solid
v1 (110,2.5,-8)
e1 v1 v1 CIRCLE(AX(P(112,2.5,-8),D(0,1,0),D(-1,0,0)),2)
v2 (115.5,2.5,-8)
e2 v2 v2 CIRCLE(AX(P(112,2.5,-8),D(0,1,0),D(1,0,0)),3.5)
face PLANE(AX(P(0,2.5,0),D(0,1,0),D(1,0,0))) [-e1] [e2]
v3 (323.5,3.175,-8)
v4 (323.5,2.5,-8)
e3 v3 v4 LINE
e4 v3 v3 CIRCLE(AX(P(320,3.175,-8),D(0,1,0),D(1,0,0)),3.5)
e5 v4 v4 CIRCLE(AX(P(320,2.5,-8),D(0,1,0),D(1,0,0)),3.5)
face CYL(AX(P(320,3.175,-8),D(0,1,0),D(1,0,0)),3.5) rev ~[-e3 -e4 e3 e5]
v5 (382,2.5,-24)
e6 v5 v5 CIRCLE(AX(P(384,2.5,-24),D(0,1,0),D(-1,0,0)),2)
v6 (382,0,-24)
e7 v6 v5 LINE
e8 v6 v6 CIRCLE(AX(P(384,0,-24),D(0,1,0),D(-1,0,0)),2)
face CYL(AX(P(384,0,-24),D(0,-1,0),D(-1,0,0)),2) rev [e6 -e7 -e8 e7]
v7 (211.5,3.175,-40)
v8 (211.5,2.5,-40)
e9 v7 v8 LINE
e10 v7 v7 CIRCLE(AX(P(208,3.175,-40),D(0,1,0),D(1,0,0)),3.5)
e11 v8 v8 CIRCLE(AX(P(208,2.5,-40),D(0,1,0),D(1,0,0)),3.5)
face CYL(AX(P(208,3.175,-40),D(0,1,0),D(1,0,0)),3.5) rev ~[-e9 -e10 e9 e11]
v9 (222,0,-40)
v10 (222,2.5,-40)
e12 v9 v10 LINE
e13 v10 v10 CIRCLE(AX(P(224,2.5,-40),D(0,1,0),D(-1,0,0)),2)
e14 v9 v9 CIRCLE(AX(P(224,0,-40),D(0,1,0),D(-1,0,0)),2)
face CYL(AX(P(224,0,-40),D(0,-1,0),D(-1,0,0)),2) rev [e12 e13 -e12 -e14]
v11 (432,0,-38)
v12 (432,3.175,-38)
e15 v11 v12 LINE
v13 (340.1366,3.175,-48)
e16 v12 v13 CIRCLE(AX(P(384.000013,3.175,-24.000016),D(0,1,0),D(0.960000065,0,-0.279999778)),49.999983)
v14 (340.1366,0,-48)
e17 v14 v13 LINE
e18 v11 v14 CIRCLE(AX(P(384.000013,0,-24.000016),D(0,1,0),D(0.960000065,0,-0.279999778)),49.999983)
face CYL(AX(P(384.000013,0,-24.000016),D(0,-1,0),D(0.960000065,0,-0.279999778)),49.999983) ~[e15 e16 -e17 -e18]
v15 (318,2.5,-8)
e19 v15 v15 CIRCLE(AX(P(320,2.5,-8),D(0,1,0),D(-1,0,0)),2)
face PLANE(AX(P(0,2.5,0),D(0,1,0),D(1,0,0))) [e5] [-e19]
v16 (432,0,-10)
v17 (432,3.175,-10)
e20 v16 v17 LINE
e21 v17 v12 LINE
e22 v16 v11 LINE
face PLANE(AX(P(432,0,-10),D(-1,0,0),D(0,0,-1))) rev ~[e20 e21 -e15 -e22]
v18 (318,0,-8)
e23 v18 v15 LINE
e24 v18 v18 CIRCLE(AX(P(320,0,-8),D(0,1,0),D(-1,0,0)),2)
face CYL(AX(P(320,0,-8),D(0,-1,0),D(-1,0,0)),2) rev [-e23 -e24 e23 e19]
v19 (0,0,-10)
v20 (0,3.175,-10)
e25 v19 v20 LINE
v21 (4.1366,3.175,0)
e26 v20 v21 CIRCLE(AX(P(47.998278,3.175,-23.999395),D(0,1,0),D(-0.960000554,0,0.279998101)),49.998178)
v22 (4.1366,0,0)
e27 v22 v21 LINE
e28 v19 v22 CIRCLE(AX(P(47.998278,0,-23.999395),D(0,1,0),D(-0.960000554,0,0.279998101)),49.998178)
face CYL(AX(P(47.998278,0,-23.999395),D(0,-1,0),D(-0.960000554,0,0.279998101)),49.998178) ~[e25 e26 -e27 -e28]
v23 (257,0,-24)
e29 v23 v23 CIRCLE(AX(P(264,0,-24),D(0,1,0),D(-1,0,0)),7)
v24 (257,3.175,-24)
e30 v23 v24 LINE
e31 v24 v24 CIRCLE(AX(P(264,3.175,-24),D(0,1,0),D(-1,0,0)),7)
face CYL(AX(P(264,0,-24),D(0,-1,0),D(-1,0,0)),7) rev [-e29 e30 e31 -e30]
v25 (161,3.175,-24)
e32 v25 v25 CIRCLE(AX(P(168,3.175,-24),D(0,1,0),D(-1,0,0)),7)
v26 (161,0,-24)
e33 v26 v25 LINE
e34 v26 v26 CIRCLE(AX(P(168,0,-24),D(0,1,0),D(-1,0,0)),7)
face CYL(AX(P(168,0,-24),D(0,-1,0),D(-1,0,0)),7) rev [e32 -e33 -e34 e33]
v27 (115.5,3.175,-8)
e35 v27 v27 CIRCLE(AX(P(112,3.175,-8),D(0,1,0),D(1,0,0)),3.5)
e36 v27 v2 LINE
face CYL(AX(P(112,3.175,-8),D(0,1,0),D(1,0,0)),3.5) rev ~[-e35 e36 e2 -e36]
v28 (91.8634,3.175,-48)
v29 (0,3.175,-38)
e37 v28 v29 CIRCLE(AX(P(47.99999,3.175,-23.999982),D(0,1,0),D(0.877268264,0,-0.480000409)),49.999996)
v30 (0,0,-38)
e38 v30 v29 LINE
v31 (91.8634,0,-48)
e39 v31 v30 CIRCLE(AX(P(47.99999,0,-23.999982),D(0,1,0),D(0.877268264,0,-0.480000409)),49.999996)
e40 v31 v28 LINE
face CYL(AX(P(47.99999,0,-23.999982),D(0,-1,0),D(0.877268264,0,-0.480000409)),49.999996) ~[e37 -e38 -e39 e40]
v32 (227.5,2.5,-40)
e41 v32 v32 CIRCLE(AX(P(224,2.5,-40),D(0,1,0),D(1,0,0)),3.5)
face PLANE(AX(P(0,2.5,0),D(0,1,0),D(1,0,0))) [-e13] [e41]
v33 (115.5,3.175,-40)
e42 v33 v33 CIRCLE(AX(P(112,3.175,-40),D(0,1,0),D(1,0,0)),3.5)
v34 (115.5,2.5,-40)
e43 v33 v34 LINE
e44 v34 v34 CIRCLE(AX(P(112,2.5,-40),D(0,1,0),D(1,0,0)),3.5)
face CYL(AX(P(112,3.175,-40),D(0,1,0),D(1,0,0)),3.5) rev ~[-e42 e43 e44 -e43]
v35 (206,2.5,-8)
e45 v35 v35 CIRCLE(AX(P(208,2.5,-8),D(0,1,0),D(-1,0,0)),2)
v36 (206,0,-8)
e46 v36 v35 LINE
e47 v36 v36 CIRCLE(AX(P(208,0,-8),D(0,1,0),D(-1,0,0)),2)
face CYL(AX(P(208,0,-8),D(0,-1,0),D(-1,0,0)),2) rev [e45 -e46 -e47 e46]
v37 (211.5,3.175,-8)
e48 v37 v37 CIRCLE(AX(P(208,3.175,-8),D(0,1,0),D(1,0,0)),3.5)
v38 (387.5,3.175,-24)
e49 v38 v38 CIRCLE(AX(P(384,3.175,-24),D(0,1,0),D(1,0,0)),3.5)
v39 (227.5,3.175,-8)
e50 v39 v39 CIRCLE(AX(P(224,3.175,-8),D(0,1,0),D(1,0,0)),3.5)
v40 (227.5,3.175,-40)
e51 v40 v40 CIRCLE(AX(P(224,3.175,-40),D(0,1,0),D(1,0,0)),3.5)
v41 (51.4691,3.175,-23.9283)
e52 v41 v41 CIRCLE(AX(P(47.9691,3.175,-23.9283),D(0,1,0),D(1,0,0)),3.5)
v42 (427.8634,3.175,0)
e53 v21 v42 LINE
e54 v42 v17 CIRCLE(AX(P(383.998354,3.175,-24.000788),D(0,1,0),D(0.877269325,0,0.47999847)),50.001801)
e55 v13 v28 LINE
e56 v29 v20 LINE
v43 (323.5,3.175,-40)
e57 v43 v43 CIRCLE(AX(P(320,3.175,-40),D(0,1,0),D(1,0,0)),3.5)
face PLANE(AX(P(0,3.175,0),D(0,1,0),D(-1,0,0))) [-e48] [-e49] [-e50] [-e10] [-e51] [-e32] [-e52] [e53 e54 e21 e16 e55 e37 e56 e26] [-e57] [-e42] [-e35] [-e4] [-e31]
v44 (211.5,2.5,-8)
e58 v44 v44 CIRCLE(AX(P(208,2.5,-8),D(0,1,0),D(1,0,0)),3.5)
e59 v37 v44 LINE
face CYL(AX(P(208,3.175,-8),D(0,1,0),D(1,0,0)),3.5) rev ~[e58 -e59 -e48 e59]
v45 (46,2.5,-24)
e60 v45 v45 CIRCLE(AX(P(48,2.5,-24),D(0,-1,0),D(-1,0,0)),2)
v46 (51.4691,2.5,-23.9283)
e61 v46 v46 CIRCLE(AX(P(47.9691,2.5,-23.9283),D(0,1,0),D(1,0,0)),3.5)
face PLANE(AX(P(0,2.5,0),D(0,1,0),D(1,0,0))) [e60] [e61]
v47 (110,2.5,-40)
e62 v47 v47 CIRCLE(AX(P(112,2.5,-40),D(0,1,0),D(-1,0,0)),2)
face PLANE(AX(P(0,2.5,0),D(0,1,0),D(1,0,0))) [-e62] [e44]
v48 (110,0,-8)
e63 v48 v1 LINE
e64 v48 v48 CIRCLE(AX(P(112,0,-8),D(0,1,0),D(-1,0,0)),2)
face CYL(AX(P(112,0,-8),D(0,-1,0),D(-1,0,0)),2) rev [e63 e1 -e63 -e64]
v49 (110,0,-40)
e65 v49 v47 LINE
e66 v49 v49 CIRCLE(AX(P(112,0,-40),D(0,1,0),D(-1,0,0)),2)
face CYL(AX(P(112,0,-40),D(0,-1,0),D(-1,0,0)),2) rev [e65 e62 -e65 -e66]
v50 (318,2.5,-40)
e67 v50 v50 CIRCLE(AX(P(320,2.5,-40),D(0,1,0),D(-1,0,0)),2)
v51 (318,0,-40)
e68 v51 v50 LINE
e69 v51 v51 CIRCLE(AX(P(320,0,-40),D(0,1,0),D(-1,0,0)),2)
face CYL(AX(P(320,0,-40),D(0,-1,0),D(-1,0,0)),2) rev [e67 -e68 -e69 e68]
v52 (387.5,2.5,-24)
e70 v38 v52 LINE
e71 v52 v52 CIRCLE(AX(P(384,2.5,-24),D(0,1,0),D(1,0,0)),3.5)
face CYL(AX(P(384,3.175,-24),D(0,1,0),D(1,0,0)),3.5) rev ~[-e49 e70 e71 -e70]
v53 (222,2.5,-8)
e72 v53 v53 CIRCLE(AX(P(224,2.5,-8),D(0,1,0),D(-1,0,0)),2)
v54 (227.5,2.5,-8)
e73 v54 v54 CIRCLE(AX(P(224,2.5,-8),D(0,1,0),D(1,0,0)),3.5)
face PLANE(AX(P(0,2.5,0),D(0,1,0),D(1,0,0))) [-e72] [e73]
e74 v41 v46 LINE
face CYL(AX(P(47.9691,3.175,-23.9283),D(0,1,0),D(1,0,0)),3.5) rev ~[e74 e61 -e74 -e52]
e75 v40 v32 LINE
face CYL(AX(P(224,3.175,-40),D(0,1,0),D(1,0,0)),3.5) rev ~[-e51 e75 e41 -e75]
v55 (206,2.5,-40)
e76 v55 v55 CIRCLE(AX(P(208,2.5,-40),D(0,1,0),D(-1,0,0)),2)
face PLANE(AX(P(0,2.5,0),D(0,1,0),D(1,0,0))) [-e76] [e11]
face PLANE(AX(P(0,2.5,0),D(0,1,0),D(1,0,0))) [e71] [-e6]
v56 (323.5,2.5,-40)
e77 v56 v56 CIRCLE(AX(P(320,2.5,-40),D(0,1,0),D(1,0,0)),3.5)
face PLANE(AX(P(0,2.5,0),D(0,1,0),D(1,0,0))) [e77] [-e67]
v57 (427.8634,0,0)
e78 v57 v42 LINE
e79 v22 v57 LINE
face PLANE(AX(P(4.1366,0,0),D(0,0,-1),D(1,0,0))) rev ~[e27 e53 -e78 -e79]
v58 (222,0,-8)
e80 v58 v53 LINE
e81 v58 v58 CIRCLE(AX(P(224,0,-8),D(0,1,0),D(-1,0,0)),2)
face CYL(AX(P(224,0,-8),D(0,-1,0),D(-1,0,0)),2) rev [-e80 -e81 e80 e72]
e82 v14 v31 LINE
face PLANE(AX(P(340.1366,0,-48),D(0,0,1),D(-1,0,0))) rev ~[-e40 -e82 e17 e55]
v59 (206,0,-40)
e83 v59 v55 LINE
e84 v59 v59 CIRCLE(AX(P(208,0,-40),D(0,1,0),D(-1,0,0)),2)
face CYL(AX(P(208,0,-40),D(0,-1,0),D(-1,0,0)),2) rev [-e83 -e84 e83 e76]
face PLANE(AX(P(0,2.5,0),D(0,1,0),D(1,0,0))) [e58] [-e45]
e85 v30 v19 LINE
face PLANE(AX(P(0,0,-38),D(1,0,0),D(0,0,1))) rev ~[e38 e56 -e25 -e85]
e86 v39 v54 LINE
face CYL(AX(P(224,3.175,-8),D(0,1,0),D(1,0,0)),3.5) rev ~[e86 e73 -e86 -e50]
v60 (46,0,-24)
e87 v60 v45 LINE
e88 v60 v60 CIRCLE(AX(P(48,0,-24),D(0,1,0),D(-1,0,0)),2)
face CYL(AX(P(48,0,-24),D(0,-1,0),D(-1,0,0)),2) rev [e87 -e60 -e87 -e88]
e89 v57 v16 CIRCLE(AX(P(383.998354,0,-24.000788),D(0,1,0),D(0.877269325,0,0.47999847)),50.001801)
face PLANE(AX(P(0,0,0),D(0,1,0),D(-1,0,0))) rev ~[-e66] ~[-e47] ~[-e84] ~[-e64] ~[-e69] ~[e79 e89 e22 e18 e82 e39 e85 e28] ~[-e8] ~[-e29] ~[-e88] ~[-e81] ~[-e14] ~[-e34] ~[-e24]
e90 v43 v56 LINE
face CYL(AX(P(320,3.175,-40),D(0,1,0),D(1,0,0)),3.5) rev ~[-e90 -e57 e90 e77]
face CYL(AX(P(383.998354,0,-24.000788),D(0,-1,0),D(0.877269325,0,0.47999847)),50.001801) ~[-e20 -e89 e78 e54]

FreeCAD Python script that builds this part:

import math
import FreeCAD as App
import Part
import Sketcher
from FreeCAD import Vector

doc = App.newDocument("Part")
params = doc.addObject("Spreadsheet::Sheet", "Params")
for row, (alias, value) in enumerate([
    ("sketch1_diameter", "4 mm"),
    ("sketch1_diameter2", "14 mm"),
    ("sketch1_radius", "50 mm"),
    ("pad1_length", "3.175 mm"),
    ("sketch2_diameter", "7 mm"),
    ("sketch2_diameter2", "4 mm"),
    ("pocket1_length", "0.675 mm"),
], start=1):
    params.set(f"A{row}", alias)
    params.set(f"B{row}", "=" + value)
    params.setAlias(f"B{row}", alias)

body = doc.addObject("PartDesign::Body", "Body")

# Sketch on XZ plane
sketch1 = doc.addObject("Sketcher::SketchObject", "Sketch")
body.addObject(sketch1)
sketch1.AttachmentSupport = (doc.XZ_Plane, [""])
sketch1.MapMode = "FlatFace"
sketch1.addGeometry(Part.ArcOfCircle(Part.Circle(Vector(47.998278, -23.999395, 0), Vector(0, 0, 1), 49.998178), math.radians(151.314246), math.radians(163.739909)), False)
sketch1.addGeometry(Part.LineSegment(Vector(4.1366, 0, 0), Vector(427.8634, 0, 0)), False)
sketch1.addGeometry(Part.ArcOfCircle(Part.Circle(Vector(383.998354, -24.000788, 0), Vector(0, 0, 1), 50.001801), math.radians(16.260543), math.radians(28.685302)), False)
sketch1.addGeometry(Part.LineSegment(Vector(432, -10, 0), Vector(432, -38, 0)), False)
sketch1.addGeometry(Part.ArcOfCircle(Part.Circle(Vector(384, -24, 0), Vector(0, 0, 1), 49.999979), math.radians(-151.314585), math.radians(-16.260205)), False)
sketch1.addGeometry(Part.LineSegment(Vector(340.1366, -48, 0), Vector(91.8634, -48, 0)), False)
sketch1.addGeometry(Part.ArcOfCircle(Part.Circle(Vector(48, -24, 0), Vector(0, 0, 1), 50), math.radians(-163.739795), math.radians(-28.685415)), False)
sketch1.addGeometry(Part.LineSegment(Vector(0, -38, 0), Vector(0, -10, 0)), False)
sketch1.addGeometry(Part.Circle(Vector(320, -40, 0), Vector(0, 0, 1), 2), False)
sketch1.addGeometry(Part.Circle(Vector(224, -40, 0), Vector(0, 0, 1), 2), False)
sketch1.addGeometry(Part.Circle(Vector(208, -40, 0), Vector(0, 0, 1), 2), False)
sketch1.addGeometry(Part.Circle(Vector(112, -40, 0), Vector(0, 0, 1), 2), False)
sketch1.addGeometry(Part.Circle(Vector(384, -24, 0), Vector(0, 0, 1), 2), False)
sketch1.addGeometry(Part.Circle(Vector(264, -24, 0), Vector(0, 0, 1), 7), False)
sketch1.addGeometry(Part.Circle(Vector(320, -8, 0), Vector(0, 0, 1), 2), False)
sketch1.addGeometry(Part.Circle(Vector(224, -8, 0), Vector(0, 0, 1), 2), False)
sketch1.addGeometry(Part.Circle(Vector(168, -24, 0), Vector(0, 0, 1), 7), False)
sketch1.addGeometry(Part.Circle(Vector(48, -24, 0), Vector(0, 0, 1), 2), False)
sketch1.addGeometry(Part.Circle(Vector(208, -8, 0), Vector(0, 0, 1), 2), False)
sketch1.addGeometry(Part.Circle(Vector(112, -8, 0), Vector(0, 0, 1), 2), False)
sketch1.addConstraint(Sketcher.Constraint("Coincident", 0, 1, 1, 1))
sketch1.addConstraint(Sketcher.Constraint("Coincident", 1, 2, 2, 2))
sketch1.addConstraint(Sketcher.Constraint("Coincident", 2, 1, 3, 1))
sketch1.addConstraint(Sketcher.Constraint("Coincident", 3, 2, 4, 2))
sketch1.addConstraint(Sketcher.Constraint("Coincident", 4, 1, 5, 1))
sketch1.addConstraint(Sketcher.Constraint("Coincident", 5, 2, 6, 2))
sketch1.addConstraint(Sketcher.Constraint("Coincident", 6, 1, 7, 1))
sketch1.addConstraint(Sketcher.Constraint("Coincident", 7, 2, 0, 2))
sketch1.addConstraint(Sketcher.Constraint("Horizontal", 1))
sketch1.addConstraint(Sketcher.Constraint("Vertical", 3))
sketch1.addConstraint(Sketcher.Constraint("Horizontal", 5))
sketch1.addConstraint(Sketcher.Constraint("Vertical", 7))
sketch1.addConstraint(Sketcher.Constraint("Coincident", 12, 3, 4, 3))
sketch1.addConstraint(Sketcher.Constraint("Coincident", 17, 3, 6, 3))
sketch1.addConstraint(Sketcher.Constraint("Equal", 4, 6))
sketch1.addConstraint(Sketcher.Constraint("Equal", 8, 9))
sketch1.addConstraint(Sketcher.Constraint("Equal", 9, 10))
sketch1.addConstraint(Sketcher.Constraint("Equal", 10, 11))
sketch1.addConstraint(Sketcher.Constraint("Equal", 11, 12))
sketch1.addConstraint(Sketcher.Constraint("Equal", 12, 14))
sketch1.addConstraint(Sketcher.Constraint("Equal", 14, 15))
sketch1.addConstraint(Sketcher.Constraint("Equal", 13, 16))
sketch1.addConstraint(Sketcher.Constraint("Equal", 15, 17))
sketch1.addConstraint(Sketcher.Constraint("Equal", 17, 18))
sketch1.addConstraint(Sketcher.Constraint("Equal", 18, 19))
sketch1.addConstraint(Sketcher.Constraint("PointOnObject", 0, 1, -1))
sketch1.addConstraint(Sketcher.Constraint("PointOnObject", 6, 1, -2))
sketch1.addConstraint(Sketcher.Constraint("Horizontal", 4, 3, 6, 3))
sketch1.addConstraint(Sketcher.Constraint("Horizontal", 8, 3, 9, 3))
sketch1.addConstraint(Sketcher.Constraint("Horizontal", 9, 3, 10, 3))
sketch1.addConstraint(Sketcher.Constraint("Horizontal", 10, 3, 11, 3))
sketch1.addConstraint(Sketcher.Constraint("Horizontal", 12, 3, 13, 3))
sketch1.addConstraint(Sketcher.Constraint("Horizontal", 14, 3, 15, 3))
sketch1.addConstraint(Sketcher.Constraint("Horizontal", 13, 3, 16, 3))
sketch1.addConstraint(Sketcher.Constraint("Horizontal", 15, 3, 18, 3))
sketch1.addConstraint(Sketcher.Constraint("Horizontal", 18, 3, 19, 3))
sketch1.addConstraint(Sketcher.Constraint("Horizontal", 3, 2, 6, 1))
sketch1.addConstraint(Sketcher.Constraint("Horizontal", 2, 1, 7, 2))
sketch1.addConstraint(Sketcher.Constraint("Vertical", 8, 3, 14, 3))
sketch1.addConstraint(Sketcher.Constraint("Vertical", 9, 3, 15, 3))
sketch1.addConstraint(Sketcher.Constraint("Vertical", 10, 3, 18, 3))
sketch1.addConstraint(Sketcher.Constraint("Vertical", 11, 3, 19, 3))
sketch1.addConstraint(Sketcher.Constraint("Diameter", 8, 4.0))
sketch1.addConstraint(Sketcher.Constraint("Diameter", 13, 14.0))
sketch1.addConstraint(Sketcher.Constraint("DistanceX", -1, 1, 6, 3, 48.0))
sketch1.addConstraint(Sketcher.Constraint("DistanceX", -1, 1, 10, 3, 208.0))
sketch1.addConstraint(Sketcher.Constraint("DistanceX", -1, 1, 11, 3, 112.0))
sketch1.addConstraint(Sketcher.Constraint("DistanceY", 14, 3, -1, 1, 8.0))
sketch1.addConstraint(Sketcher.Constraint("DistanceX", -1, 1, 16, 3, 168.0))
sketch1.addConstraint(Sketcher.Constraint("DistanceX", -1, 1, 2, 1, 432.0))
sketch1.addConstraint(Sketcher.Constraint("DistanceY", 4, 1, -1, 1, 48.0))
sketch1.addConstraint(Sketcher.Constraint("Radius", 4, 50.0))
sketch1.addConstraint(Sketcher.Constraint("DistanceX", 10, 3, 8, 3, 112.0))
sketch1.addConstraint(Sketcher.Constraint("DistanceX", 11, 3, 9, 3, 112.0))
sketch1.addConstraint(Sketcher.Constraint("DistanceY", 4, 3, 2, 1, 14.0))
sketch1.addConstraint(Sketcher.Constraint("DistanceY", 4, 1, 8, 3, 8.0))
sketch1.addConstraint(Sketcher.Constraint("DistanceY", 4, 3, -1, 1, 24.0))
sketch1.addConstraint(Sketcher.Constraint("DistanceX", -1, 1, 13, 3, 264.0))
sketch1.addConstraint(Sketcher.Constraint("DistanceX", 0, 3, 2, 3, 336.0))
sketch1.addConstraint(Sketcher.Constraint("Radius", 0, 49.9982))
sketch1.addConstraint(Sketcher.Constraint("Radius", 2, 50.0018))
sketch1.addConstraint(Sketcher.Constraint("DistanceX", 2, 3, 1, 2, 43.865))
sketch1.setExpression("Constraints[42]", "Params.sketch1_diameter")
sketch1.setExpression("Constraints[43]", "Params.sketch1_diameter2")
sketch1.setExpression("Constraints[51]", "Params.sketch1_radius")
pad1 = doc.addObject("PartDesign::Pad", "Pad")
body.addObject(pad1)
pad1.Profile = sketch1
pad1.setExpression("Length", "Params.pad1_length")
pad1.Reversed = True

# Sketch on XZ plane
sketch2 = doc.addObject("Sketcher::SketchObject", "Sketch001")
body.addObject(sketch2)
sketch2.AttachmentSupport = (doc.XZ_Plane, [""])
sketch2.MapMode = "FlatFace"
sketch2.AttachmentOffset = App.Placement(Vector(0, 0, -3.175), App.Rotation())
sketch2.addGeometry(Part.Circle(Vector(47.9691, -23.9283, 0), Vector(0, 0, 1), 3.5), False)
sketch2.addGeometry(Part.Circle(Vector(112, -8, 0), Vector(0, 0, 1), 3.5), False)
sketch2.addGeometry(Part.Circle(Vector(112, -8, 0), Vector(0, 0, 1), 2), False)
sketch2.addGeometry(Part.Circle(Vector(112, -40, 0), Vector(0, 0, 1), 3.5), False)
sketch2.addGeometry(Part.Circle(Vector(112, -40, 0), Vector(0, 0, 1), 2), False)
sketch2.addGeometry(Part.Circle(Vector(208, -40, 0), Vector(0, 0, 1), 3.5), False)
sketch2.addGeometry(Part.Circle(Vector(208, -40, 0), Vector(0, 0, 1), 2), False)
sketch2.addGeometry(Part.Circle(Vector(224, -40, 0), Vector(0, 0, 1), 3.5), False)
sketch2.addGeometry(Part.Circle(Vector(224, -40, 0), Vector(0, 0, 1), 2), False)
sketch2.addGeometry(Part.Circle(Vector(224, -8, 0), Vector(0, 0, 1), 3.5), False)
sketch2.addGeometry(Part.Circle(Vector(224, -8, 0), Vector(0, 0, 1), 2), False)
sketch2.addGeometry(Part.Circle(Vector(208, -8, 0), Vector(0, 0, 1), 3.5), False)
sketch2.addGeometry(Part.Circle(Vector(208, -8, 0), Vector(0, 0, 1), 2), False)
sketch2.addGeometry(Part.Circle(Vector(320, -40, 0), Vector(0, 0, 1), 3.5), False)
sketch2.addGeometry(Part.Circle(Vector(320, -40, 0), Vector(0, 0, 1), 2), False)
sketch2.addGeometry(Part.Circle(Vector(320, -8, 0), Vector(0, 0, 1), 3.5), False)
sketch2.addGeometry(Part.Circle(Vector(320, -8, 0), Vector(0, 0, 1), 2), False)
sketch2.addGeometry(Part.Circle(Vector(384, -24, 0), Vector(0, 0, 1), 3.5), False)
sketch2.addGeometry(Part.Circle(Vector(384, -24, 0), Vector(0, 0, 1), 2), False)
sketch2.addConstraint(Sketcher.Constraint("Coincident", 2, 3, 1, 3))
sketch2.addConstraint(Sketcher.Constraint("Coincident", 4, 3, 3, 3))
sketch2.addConstraint(Sketcher.Constraint("Coincident", 6, 3, 5, 3))
sketch2.addConstraint(Sketcher.Constraint("Coincident", 8, 3, 7, 3))
sketch2.addConstraint(Sketcher.Constraint("Coincident", 10, 3, 9, 3))
sketch2.addConstraint(Sketcher.Constraint("Coincident", 12, 3, 11, 3))
sketch2.addConstraint(Sketcher.Constraint("Coincident", 14, 3, 13, 3))
sketch2.addConstraint(Sketcher.Constraint("Coincident", 16, 3, 15, 3))
sketch2.addConstraint(Sketcher.Constraint("Coincident", 18, 3, 17, 3))
sketch2.addConstraint(Sketcher.Constraint("Equal", 0, 1))
sketch2.addConstraint(Sketcher.Constraint("Equal", 1, 3))
sketch2.addConstraint(Sketcher.Constraint("Equal", 2, 4))
sketch2.addConstraint(Sketcher.Constraint("Equal", 3, 5))
sketch2.addConstraint(Sketcher.Constraint("Equal", 4, 6))
sketch2.addConstraint(Sketcher.Constraint("Equal", 5, 7))
sketch2.addConstraint(Sketcher.Constraint("Equal", 6, 8))
sketch2.addConstraint(Sketcher.Constraint("Equal", 7, 9))
sketch2.addConstraint(Sketcher.Constraint("Equal", 8, 10))
sketch2.addConstraint(Sketcher.Constraint("Equal", 9, 11))
sketch2.addConstraint(Sketcher.Constraint("Equal", 10, 12))
sketch2.addConstraint(Sketcher.Constraint("Equal", 11, 13))
sketch2.addConstraint(Sketcher.Constraint("Equal", 12, 14))
sketch2.addConstraint(Sketcher.Constraint("Equal", 13, 15))
sketch2.addConstraint(Sketcher.Constraint("Equal", 14, 16))
sketch2.addConstraint(Sketcher.Constraint("Equal", 15, 17))
sketch2.addConstraint(Sketcher.Constraint("Equal", 16, 18))
sketch2.addConstraint(Sketcher.Constraint("Horizontal", 4, 3, 5, 3))
sketch2.addConstraint(Sketcher.Constraint("Horizontal", 6, 3, 7, 3))
sketch2.addConstraint(Sketcher.Constraint("Horizontal", 2, 3, 9, 3))
sketch2.addConstraint(Sketcher.Constraint("Horizontal", 10, 3, 11, 3))
sketch2.addConstraint(Sketcher.Constraint("Horizontal", 8, 3, 13, 3))
sketch2.addConstraint(Sketcher.Constraint("Horizontal", 12, 3, 15, 3))
sketch2.addConstraint(Sketcher.Constraint("Vertical", 2, 3, 3, 3))
sketch2.addConstraint(Sketcher.Constraint("Vertical", 8, 3, 9, 3))
sketch2.addConstraint(Sketcher.Constraint("Vertical", 6, 3, 11, 3))
sketch2.addConstraint(Sketcher.Constraint("Vertical", 14, 3, 15, 3))
sketch2.addConstraint(Sketcher.Constraint("Diameter", 0, 7.0))
sketch2.addConstraint(Sketcher.Constraint("Diameter", 2, 4.0))
sketch2.addConstraint(Sketcher.Constraint("DistanceX", -1, 1, 1, 3, 112.0))
sketch2.addConstraint(Sketcher.Constraint("DistanceY", 1, 3, -1, 1, 8.0))
sketch2.addConstraint(Sketcher.Constraint("DistanceY", 3, 3, -1, 1, 40.0))
sketch2.addConstraint(Sketcher.Constraint("DistanceX", -1, 1, 5, 3, 208.0))
sketch2.addConstraint(Sketcher.Constraint("DistanceX", -1, 1, 7, 3, 224.0))
sketch2.addConstraint(Sketcher.Constraint("DistanceX", -1, 1, 13, 3, 320.0))
sketch2.addConstraint(Sketcher.Constraint("DistanceX", -1, 1, 17, 3, 384.0))
sketch2.addConstraint(Sketcher.Constraint("DistanceY", 17, 3, -1, 1, 24.0))
sketch2.addConstraint(Sketcher.Constraint("DistanceX", -1, 1, 0, 3, 47.969))
sketch2.addConstraint(Sketcher.Constraint("DistanceY", 0, 3, -1, 1, 23.9283))
sketch2.setExpression("Constraints[36]", "Params.sketch2_diameter")
sketch2.setExpression("Constraints[37]", "Params.sketch2_diameter2")
pocket1 = doc.addObject("PartDesign::Pocket", "Pocket")
body.addObject(pocket1)
pocket1.Profile = sketch2
pocket1.setExpression("Length", "Params.pocket1_length")
pocket1.Reversed = True

doc.recompute()
